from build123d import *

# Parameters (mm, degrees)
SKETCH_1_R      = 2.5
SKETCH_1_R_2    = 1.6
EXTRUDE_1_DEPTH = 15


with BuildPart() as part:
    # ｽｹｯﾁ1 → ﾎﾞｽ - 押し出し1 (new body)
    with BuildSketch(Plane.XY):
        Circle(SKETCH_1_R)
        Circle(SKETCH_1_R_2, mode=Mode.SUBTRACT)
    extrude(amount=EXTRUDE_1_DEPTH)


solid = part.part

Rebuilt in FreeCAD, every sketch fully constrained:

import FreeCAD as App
import Part
import Sketcher

V = App.Vector
Q = App.Units.Quantity

doc = App.newDocument("Part")
body = doc.addObject("PartDesign::Body", "Body")

# Sketch on XY plane
sketch1 = body.newObject("Sketcher::SketchObject", "Sketch")
sketch1.AttachmentSupport = (doc.getObject("XY_Plane"), [""])
sketch1.MapMode = "FlatFace"
sketch1.addGeometry([
    Part.Circle(V(0, 0, 0), V(0, 0, 1), 2.5),
    Part.Circle(V(0, 0, 0), V(0, 0, 1), 1.6),
], False)
sketch1.addConstraint([
    Sketcher.Constraint("Coincident", 0, 3, -1, 1),
    Sketcher.Constraint("Coincident", 1, 3, -1, 1),
    Sketcher.Constraint("Diameter", 0, Q("5 mm")),
    Sketcher.Constraint("Diameter", 1, Q("3.2 mm")),
])
pad1 = body.newObject("PartDesign::Pad", "Pad")
pad1.Profile = sketch1
pad1.Length = 15

doc.recompute()
